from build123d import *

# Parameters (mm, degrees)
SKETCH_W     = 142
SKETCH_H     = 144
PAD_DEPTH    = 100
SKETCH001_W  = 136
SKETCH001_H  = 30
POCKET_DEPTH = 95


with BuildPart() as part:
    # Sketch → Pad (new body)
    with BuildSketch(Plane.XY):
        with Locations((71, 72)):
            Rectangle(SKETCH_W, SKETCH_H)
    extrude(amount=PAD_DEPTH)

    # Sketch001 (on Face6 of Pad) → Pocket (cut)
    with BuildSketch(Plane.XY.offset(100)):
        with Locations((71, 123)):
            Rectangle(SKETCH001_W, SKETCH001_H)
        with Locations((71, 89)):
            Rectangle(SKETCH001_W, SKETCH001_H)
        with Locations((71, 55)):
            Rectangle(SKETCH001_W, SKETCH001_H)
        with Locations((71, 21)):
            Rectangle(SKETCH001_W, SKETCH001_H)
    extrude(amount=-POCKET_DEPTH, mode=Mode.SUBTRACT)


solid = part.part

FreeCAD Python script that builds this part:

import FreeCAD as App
import Part
import Sketcher
from FreeCAD import Vector
Q = App.Units.Quantity


def add_polygon(sketch, points):
    """Adds a closed chain of lines whose ends are joined by coincident constraints."""
    first, n = sketch.GeometryCount, len(points)
    for a, b in zip(points, points[1:] + points[:1]):
        sketch.addGeometry(Part.LineSegment(App.Vector(*a, 0), App.Vector(*b, 0)), False)
    for i in range(n):
        sketch.addConstraint(Sketcher.Constraint("Coincident", first + i, 2, first + (i + 1) % n, 1))

doc = App.newDocument("Part")
body = doc.addObject("PartDesign::Body", "Body")

sketch1 = doc.addObject("Sketcher::SketchObject", "Sketch")
body.addObject(sketch1)
sketch1.AttachmentSupport = (doc.XY_Plane, [""])
sketch1.MapMode = "FlatFace"
add_polygon(sketch1, [(0, 144), (0, 0), (142, 0), (142, 144)])
sketch1.addConstraint([
    Sketcher.Constraint("Vertical", 0),
    Sketcher.Constraint("Horizontal", 1),
    Sketcher.Constraint("Vertical", 2),
    Sketcher.Constraint("Horizontal", 3),
    Sketcher.Constraint("Coincident", 0, 2, -1, 1),
    Sketcher.Constraint("DistanceX", 1, 1, 1, 2, Q("142 mm")),
    Sketcher.Constraint("DistanceY", 0, 2, 0, 1, Q("144 mm")),
])
pad1 = doc.addObject("PartDesign::Pad", "Pad")
body.addObject(pad1)
pad1.Profile = sketch1
pad1.Length = 100

sketch2 = doc.addObject("Sketcher::SketchObject", "Sketch001")
body.addObject(sketch2)
sketch2.AttachmentSupport = (doc.XY_Plane, [""])
sketch2.MapMode = "FlatFace"
sketch2.AttachmentOffset = App.Placement(Vector(0, 0, 100), App.Rotation())
add_polygon(sketch2, [(3, 138), (3, 108), (139, 108), (139, 138)])
add_polygon(sketch2, [(3, 104), (3, 74), (139, 74), (139, 104)])
add_polygon(sketch2, [(3, 70), (3, 40), (139, 40), (139, 70)])
add_polygon(sketch2, [(3, 36), (3, 6), (139, 6), (139, 36)])
sketch2.addConstraint([
    Sketcher.Constraint("Vertical", 0),
    Sketcher.Constraint("Horizontal", 1),
    Sketcher.Constraint("Vertical", 2),
    Sketcher.Constraint("Horizontal", 3),
    Sketcher.Constraint("Vertical", 4),
    Sketcher.Constraint("Horizontal", 5),
    Sketcher.Constraint("Vertical", 6),
    Sketcher.Constraint("Horizontal", 7),
    Sketcher.Constraint("Vertical", 8),
    Sketcher.Constraint("Horizontal", 9),
    Sketcher.Constraint("Vertical", 10),
    Sketcher.Constraint("Horizontal", 11),
    Sketcher.Constraint("Vertical", 12),
    Sketcher.Constraint("Horizontal", 13),
    Sketcher.Constraint("Vertical", 14),
    Sketcher.Constraint("Horizontal", 15),
    Sketcher.Constraint("Vertical", 3, 2, 4, 2),
    Sketcher.Constraint("Vertical", 2, 2, 5, 2),
    Sketcher.Constraint("Vertical", 7, 2, 8, 2),
    Sketcher.Constraint("Vertical", 6, 2, 9, 2),
    Sketcher.Constraint("Vertical", 11, 2, 12, 2),
    Sketcher.Constraint("Vertical", 10, 2, 13, 2),
    Sketcher.Constraint("Equal", 2, 4),
    Sketcher.Constraint("Equal", 6, 8),
    Sketcher.Constraint("Equal", 10, 12),
    Sketcher.Constraint("DistanceX", 1, 1, 1, 2, Q("136 mm")),
    Sketcher.Constraint("DistanceY", 0, 2, 0, 1, Q("30 mm")),
    Sketcher.Constraint("DistanceX", -1, 1, 0, 2, Q("3 mm")),
    Sketcher.Constraint("DistanceY", -1, 1, 0, 2, Q("108 mm")),
    Sketcher.Constraint("DistanceY", -1, 1, 4, 2, Q("74 mm")),
    Sketcher.Constraint("DistanceY", -1, 1, 8, 2, Q("40 mm")),
    Sketcher.Constraint("DistanceY", -1, 1, 12, 2, Q("6 mm")),
])
pocket1 = doc.addObject("PartDesign::Pocket", "Pocket")
body.addObject(pocket1)
pocket1.Profile = sketch2
pocket1.Length = 95

doc.recompute()
